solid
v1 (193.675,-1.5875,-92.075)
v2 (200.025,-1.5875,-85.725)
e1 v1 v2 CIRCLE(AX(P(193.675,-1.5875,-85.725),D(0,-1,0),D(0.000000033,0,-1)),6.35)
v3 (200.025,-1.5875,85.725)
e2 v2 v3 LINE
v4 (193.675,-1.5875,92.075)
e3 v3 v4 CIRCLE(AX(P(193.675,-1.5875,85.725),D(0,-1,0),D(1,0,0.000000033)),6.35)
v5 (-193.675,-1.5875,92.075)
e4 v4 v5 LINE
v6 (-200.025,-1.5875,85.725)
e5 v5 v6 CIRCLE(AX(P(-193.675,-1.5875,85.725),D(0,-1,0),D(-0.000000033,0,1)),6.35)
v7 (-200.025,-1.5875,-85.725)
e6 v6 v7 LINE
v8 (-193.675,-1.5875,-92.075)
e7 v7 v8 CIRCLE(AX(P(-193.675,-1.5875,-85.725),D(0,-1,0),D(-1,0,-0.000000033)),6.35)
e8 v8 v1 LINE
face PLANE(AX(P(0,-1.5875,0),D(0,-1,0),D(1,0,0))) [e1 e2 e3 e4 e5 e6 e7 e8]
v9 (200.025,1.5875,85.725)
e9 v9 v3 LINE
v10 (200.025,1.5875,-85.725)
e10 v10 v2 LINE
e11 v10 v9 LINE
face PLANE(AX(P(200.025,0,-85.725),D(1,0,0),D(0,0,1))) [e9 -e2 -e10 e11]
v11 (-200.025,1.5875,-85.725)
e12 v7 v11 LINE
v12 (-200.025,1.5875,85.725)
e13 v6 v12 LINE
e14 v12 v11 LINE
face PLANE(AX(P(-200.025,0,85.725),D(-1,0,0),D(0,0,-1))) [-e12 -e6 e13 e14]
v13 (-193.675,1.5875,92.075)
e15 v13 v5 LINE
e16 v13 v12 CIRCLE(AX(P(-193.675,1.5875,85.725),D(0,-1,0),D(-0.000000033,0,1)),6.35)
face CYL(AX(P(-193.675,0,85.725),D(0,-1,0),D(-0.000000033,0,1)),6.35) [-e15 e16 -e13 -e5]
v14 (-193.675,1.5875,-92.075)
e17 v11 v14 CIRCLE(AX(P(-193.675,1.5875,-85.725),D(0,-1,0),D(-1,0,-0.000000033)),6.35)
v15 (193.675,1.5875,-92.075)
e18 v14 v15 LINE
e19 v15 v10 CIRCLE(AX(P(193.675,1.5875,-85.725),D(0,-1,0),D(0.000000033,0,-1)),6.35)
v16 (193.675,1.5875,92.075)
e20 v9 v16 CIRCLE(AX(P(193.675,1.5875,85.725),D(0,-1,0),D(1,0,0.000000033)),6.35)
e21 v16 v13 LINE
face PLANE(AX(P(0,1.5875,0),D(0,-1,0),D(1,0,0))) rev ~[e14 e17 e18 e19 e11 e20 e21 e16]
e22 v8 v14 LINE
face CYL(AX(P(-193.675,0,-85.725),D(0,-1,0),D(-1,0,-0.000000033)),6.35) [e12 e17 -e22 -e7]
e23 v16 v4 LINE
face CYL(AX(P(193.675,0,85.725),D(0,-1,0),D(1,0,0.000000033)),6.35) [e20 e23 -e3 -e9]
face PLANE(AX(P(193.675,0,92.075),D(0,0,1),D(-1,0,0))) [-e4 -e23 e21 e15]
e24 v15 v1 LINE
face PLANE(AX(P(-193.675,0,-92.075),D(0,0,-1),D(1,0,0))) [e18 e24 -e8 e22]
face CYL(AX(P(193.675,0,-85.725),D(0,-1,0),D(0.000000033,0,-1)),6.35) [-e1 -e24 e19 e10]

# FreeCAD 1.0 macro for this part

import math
import FreeCAD as App
import Part
import Sketcher
from FreeCAD import Vector
Q = App.Units.Quantity

doc = App.newDocument("Part")
body = doc.addObject("PartDesign::Body", "Body")

sketch1 = body.newObject("Sketcher::SketchObject", "Sketch")
sketch1.AttachmentSupport = (doc.getObject("XZ_Plane"), [""])
sketch1.MapMode = "FlatFace"
sketch1.addGeometry([
    Part.LineSegment(Vector(-194, -92, 0), Vector(194, -92, 0)),
    Part.ArcOfCircle(Part.Circle(Vector(194, -86, 0), Vector(0, 0, 1), 6), math.radians(-90), math.radians(0)),
    Part.LineSegment(Vector(200, -86, 0), Vector(200, 86, 0)),
    Part.ArcOfCircle(Part.Circle(Vector(194, 86, 0), Vector(0, 0, 1), 6), math.radians(0), math.radians(90)),
    Part.LineSegment(Vector(194, 92, 0), Vector(-194, 92, 0)),
    Part.ArcOfCircle(Part.Circle(Vector(-194, 86, 0), Vector(0, 0, 1), 6), math.radians(90), math.radians(180)),
    Part.LineSegment(Vector(-200, 86, 0), Vector(-200, -86, 0)),
    Part.ArcOfCircle(Part.Circle(Vector(-194, -86, 0), Vector(0, 0, 1), 6), math.radians(-180), math.radians(-90)),
], False)
sketch1.addConstraint([
    Sketcher.Constraint("Tangent", 0, 2, 1, 1),
    Sketcher.Constraint("Tangent", 1, 2, 2, 1),
    Sketcher.Constraint("Tangent", 2, 2, 3, 1),
    Sketcher.Constraint("Tangent", 3, 2, 4, 1),
    Sketcher.Constraint("Tangent", 4, 2, 5, 1),
    Sketcher.Constraint("Tangent", 5, 2, 6, 1),
    Sketcher.Constraint("Tangent", 6, 2, 7, 1),
    Sketcher.Constraint("Tangent", 7, 2, 0, 1),
    Sketcher.Constraint("Horizontal", 0),
    Sketcher.Constraint("Vertical", 2),
    Sketcher.Constraint("Horizontal", 4),
    Sketcher.Constraint("Vertical", 6),
    Sketcher.Constraint("Equal", 1, 3),
    Sketcher.Constraint("Equal", 3, 5),
    Sketcher.Constraint("Equal", 5, 7),
    Sketcher.Constraint("Symmetric", 1, 3, 5, 3, -1, 1),
    Sketcher.Constraint("Radius", 1, Q("0.25 in")),
    Sketcher.Constraint("DistanceY", 0, 2, 3, 3, Q("7 in")),
    Sketcher.Constraint("DistanceX", 0, 1, 0, 2, Q("15.25 in")),
])
pad1 = body.newObject("PartDesign::Pad", "Pad")
pad1.Profile = sketch1
pad1.Length = Q("0.125 in")
pad1.Midplane = True

doc.recompute()
